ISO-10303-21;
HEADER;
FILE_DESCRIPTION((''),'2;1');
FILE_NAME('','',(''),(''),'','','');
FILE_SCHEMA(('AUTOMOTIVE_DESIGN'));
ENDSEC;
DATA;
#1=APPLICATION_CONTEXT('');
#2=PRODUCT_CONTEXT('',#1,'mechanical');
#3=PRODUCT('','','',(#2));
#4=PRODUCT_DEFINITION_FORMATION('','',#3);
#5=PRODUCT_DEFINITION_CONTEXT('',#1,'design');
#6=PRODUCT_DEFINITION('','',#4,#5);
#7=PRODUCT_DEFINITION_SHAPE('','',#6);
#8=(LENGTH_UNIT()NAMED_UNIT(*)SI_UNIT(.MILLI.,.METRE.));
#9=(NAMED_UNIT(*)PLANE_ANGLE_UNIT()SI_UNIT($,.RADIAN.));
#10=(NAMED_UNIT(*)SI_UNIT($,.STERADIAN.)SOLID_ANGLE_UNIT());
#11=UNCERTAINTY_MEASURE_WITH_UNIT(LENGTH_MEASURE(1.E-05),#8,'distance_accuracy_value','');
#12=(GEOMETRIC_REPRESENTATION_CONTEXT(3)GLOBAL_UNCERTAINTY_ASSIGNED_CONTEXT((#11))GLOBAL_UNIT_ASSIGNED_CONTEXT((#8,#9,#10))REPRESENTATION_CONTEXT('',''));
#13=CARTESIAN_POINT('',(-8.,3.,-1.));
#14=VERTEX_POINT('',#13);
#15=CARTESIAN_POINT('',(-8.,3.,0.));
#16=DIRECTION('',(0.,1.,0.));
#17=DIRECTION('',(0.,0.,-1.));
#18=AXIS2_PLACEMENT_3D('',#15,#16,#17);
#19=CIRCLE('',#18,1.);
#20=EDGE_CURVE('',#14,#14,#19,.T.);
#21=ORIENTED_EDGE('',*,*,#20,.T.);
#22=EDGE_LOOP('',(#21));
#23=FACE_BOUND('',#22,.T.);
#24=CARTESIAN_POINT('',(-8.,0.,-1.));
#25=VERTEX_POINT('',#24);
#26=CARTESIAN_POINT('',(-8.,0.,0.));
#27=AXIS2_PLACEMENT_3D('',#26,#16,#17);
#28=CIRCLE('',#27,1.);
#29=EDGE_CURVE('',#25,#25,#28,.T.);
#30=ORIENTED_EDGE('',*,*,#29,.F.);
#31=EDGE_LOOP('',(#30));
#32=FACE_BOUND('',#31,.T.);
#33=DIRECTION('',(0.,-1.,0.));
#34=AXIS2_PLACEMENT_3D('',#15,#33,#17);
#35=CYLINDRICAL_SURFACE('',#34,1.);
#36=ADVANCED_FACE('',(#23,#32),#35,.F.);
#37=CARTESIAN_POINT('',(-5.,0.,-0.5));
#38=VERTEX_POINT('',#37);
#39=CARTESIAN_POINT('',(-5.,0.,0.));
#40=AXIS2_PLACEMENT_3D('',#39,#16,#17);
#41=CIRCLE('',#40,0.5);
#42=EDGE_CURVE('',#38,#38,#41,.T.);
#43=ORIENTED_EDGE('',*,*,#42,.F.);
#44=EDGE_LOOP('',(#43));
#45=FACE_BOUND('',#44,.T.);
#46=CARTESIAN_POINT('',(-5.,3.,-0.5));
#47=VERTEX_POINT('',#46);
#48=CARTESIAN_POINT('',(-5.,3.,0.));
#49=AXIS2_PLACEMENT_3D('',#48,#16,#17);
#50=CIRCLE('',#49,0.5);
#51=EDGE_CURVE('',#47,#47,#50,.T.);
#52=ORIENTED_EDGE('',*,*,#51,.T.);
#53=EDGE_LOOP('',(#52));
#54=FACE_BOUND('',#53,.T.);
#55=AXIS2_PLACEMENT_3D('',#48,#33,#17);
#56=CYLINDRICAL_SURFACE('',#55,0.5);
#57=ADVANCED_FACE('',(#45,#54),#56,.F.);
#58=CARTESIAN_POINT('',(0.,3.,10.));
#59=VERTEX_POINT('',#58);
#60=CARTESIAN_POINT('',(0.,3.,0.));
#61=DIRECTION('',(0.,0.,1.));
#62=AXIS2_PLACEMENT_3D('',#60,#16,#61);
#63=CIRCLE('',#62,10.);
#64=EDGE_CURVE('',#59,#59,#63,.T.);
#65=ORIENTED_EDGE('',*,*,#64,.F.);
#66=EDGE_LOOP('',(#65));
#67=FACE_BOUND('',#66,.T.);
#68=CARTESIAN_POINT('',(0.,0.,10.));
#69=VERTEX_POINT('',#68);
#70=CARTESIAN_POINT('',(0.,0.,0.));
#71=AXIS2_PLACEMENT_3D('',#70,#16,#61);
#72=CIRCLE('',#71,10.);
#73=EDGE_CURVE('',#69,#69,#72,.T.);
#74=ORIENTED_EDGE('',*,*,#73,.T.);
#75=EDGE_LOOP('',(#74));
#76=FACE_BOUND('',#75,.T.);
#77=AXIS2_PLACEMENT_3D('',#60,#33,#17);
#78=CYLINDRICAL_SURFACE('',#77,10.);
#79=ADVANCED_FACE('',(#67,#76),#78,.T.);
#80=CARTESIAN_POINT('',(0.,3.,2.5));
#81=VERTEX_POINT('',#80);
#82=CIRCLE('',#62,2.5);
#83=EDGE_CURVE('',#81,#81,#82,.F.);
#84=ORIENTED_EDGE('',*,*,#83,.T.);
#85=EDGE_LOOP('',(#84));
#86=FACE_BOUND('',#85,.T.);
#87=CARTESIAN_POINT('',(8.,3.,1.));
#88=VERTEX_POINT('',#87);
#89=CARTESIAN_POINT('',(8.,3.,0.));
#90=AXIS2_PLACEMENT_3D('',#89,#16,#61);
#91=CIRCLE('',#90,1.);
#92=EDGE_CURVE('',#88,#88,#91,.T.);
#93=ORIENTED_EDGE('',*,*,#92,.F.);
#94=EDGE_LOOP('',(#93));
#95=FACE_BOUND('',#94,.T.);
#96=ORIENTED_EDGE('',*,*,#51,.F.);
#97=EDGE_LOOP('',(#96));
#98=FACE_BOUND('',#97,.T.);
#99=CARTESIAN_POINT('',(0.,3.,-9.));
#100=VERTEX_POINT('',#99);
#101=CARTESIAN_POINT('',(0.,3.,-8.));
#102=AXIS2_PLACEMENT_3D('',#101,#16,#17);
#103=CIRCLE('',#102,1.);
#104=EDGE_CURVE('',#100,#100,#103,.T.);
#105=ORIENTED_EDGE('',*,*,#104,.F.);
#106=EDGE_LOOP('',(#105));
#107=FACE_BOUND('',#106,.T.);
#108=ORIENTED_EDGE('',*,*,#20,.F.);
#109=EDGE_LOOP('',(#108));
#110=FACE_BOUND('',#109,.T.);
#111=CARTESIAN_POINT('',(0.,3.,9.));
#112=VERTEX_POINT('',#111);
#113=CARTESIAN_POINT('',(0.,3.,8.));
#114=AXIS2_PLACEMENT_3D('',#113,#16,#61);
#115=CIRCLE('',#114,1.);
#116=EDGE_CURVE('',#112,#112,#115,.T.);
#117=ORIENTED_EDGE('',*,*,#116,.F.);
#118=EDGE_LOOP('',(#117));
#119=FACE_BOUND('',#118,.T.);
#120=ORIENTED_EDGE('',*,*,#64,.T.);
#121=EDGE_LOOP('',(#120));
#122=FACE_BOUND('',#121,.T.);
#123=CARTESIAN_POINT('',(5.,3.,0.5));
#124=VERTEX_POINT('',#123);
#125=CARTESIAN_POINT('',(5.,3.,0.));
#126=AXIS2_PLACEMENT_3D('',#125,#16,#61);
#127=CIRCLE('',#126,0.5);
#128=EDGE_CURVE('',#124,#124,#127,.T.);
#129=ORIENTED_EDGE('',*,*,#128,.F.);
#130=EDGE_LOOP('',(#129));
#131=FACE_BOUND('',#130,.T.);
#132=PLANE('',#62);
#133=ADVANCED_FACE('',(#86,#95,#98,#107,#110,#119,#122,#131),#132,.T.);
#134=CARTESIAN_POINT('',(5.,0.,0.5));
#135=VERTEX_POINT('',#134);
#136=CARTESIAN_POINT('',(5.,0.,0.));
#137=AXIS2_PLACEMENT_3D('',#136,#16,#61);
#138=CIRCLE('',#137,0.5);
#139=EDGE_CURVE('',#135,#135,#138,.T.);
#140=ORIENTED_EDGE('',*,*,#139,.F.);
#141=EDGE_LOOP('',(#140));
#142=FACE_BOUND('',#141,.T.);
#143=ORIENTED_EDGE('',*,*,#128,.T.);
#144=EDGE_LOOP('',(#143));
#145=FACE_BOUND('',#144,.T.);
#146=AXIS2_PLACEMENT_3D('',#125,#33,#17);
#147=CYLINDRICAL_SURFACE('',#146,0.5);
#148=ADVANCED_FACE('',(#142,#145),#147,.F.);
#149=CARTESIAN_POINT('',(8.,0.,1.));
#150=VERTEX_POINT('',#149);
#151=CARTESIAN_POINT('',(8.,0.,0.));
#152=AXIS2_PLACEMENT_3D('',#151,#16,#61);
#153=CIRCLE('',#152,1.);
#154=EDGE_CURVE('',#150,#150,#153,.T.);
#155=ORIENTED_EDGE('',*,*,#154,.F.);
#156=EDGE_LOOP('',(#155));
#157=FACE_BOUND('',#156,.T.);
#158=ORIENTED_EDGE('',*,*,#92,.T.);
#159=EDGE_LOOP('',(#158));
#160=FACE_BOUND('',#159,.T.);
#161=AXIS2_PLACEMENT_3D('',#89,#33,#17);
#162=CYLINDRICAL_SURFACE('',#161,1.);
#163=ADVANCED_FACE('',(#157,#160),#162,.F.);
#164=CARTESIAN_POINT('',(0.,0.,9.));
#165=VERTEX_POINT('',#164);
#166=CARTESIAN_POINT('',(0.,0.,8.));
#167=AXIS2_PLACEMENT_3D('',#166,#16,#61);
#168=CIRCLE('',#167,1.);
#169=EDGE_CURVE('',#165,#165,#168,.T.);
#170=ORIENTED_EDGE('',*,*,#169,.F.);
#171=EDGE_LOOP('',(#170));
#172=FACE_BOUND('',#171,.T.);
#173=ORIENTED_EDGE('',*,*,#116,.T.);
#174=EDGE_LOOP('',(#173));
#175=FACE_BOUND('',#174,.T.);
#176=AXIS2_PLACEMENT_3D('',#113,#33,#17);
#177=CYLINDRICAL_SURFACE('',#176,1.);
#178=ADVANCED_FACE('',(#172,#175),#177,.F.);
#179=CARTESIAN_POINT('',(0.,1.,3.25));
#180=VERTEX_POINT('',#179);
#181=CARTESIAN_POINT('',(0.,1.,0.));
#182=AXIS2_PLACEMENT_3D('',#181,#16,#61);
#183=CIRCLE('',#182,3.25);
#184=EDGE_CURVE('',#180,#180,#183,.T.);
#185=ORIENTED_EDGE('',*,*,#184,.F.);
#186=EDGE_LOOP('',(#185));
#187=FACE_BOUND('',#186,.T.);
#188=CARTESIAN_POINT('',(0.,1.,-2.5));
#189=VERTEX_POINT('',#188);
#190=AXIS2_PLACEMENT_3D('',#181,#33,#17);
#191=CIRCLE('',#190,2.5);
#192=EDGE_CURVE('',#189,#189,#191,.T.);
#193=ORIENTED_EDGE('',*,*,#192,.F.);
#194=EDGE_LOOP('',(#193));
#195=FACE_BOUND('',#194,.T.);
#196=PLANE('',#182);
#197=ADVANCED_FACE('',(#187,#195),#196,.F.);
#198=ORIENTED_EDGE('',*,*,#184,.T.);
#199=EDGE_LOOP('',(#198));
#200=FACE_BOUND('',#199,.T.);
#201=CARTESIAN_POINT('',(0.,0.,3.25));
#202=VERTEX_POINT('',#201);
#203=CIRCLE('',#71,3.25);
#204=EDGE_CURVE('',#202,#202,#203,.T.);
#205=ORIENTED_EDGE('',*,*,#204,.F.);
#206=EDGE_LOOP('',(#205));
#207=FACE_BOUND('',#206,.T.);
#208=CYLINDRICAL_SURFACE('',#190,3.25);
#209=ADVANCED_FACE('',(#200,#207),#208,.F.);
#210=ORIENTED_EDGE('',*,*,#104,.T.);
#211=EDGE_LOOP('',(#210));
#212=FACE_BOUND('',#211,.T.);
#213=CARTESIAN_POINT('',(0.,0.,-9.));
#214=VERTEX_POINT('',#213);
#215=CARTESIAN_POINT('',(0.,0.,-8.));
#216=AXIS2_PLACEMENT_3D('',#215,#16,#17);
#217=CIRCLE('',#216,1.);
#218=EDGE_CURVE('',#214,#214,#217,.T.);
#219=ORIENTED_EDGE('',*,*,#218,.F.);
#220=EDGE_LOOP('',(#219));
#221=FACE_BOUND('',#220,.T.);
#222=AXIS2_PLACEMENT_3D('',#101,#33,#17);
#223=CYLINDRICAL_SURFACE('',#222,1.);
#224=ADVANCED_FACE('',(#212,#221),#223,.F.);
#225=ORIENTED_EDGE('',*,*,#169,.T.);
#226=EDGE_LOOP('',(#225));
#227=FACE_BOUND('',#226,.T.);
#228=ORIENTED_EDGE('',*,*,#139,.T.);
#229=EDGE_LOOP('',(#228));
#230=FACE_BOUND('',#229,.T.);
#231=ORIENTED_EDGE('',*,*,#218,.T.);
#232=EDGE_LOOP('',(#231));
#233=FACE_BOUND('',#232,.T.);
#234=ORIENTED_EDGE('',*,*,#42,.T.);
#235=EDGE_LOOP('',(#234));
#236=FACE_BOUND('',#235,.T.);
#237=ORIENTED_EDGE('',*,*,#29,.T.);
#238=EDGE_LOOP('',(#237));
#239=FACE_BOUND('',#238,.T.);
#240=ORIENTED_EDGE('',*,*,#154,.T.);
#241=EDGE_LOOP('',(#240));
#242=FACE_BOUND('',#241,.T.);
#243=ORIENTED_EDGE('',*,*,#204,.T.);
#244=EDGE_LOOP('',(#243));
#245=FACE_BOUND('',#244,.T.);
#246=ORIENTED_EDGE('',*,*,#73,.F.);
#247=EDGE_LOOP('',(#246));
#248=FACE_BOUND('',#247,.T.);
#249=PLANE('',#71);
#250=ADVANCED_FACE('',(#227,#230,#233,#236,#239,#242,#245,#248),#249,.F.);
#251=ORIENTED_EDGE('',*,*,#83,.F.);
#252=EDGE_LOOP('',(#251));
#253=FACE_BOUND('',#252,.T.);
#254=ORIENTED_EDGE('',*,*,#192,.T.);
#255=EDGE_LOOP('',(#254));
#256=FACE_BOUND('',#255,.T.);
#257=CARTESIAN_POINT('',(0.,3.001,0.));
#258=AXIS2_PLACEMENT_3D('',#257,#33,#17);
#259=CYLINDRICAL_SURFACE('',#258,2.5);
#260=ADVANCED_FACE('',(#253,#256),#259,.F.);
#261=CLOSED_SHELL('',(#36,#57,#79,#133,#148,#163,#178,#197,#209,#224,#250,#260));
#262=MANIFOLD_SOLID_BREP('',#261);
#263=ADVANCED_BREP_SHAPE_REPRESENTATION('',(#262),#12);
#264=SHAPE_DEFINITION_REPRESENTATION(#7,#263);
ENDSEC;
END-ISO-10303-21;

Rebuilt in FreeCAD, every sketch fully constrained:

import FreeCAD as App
import Part
import Sketcher
from FreeCAD import Vector
Q = App.Units.Quantity

doc = App.newDocument("Part")
body = doc.addObject("PartDesign::Body", "Body")

sketch1 = body.newObject("Sketcher::SketchObject", "Sketch")
sketch1.AttachmentSupport = (doc.getObject("XZ_Plane"), [""])
sketch1.MapMode = "FlatFace"
sketch1.addGeometry(Part.Circle(Vector(0, 0, 0), Vector(0, 0, 1), 10), False)
sketch1.addConstraint([
    Sketcher.Constraint("Coincident", 0, 3, -1, 1),
    Sketcher.Constraint("Diameter", 0, Q("20 mm")),
])
pad1 = body.newObject("PartDesign::Pad", "Pad")
pad1.Profile = sketch1
pad1.Length = 3
pad1.Reversed = True

sketch2 = body.newObject("Sketcher::SketchObject", "Sketch001")
sketch2.AttachmentSupport = (doc.getObject("XZ_Plane"), [""])
sketch2.MapMode = "FlatFace"
sketch2.addGeometry([
    Part.Circle(Vector(8, 0, 0), Vector(0, 0, 1), 1),
    Part.Circle(Vector(5, 0, 0), Vector(0, 0, 1), 0.5),
    Part.Circle(Vector(-5, 0, 0), Vector(0, 0, 1), 0.5),
    Part.Circle(Vector(-8, 0, 0), Vector(0, 0, 1), 1),
    Part.Circle(Vector(0, -8, 0), Vector(0, 0, 1), 1),
    Part.Circle(Vector(0, 8, 0), Vector(0, 0, 1), 1),
], False)
sketch2.addConstraint([
    Sketcher.Constraint("Equal", 1, 2),
    Sketcher.Constraint("Equal", 0, 3),
    Sketcher.Constraint("Equal", 3, 4),
    Sketcher.Constraint("Equal", 4, 5),
    Sketcher.Constraint("Symmetric", 1, 3, 2, 3, -1, 1),
    Sketcher.Constraint("Symmetric", 0, 3, 3, 3, -1, 1),
    Sketcher.Constraint("Symmetric", 4, 3, 5, 3, -1, 1),
    Sketcher.Constraint("PointOnObject", 0, 3, -1),
    Sketcher.Constraint("PointOnObject", 1, 3, -1),
    Sketcher.Constraint("PointOnObject", 4, 3, -2),
    Sketcher.Constraint("Diameter", 0, Q("2 mm")),
    Sketcher.Constraint("Diameter", 1, Q("1 mm")),
    Sketcher.Constraint("DistanceX", -1, 1, 0, 3, Q("8 mm")),
    Sketcher.Constraint("DistanceX", -1, 1, 1, 3, Q("5 mm")),
    Sketcher.Constraint("DistanceY", 4, 3, -1, 1, Q("8 mm")),
])
pocket1 = body.newObject("PartDesign::Pocket", "Pocket")
pocket1.Profile = sketch2
pocket1.Length = 3

sketch3 = body.newObject("Sketcher::SketchObject", "Sketch002")
sketch3.AttachmentSupport = (doc.getObject("XZ_Plane"), [""])
sketch3.MapMode = "FlatFace"
sketch3.addGeometry(Part.Circle(Vector(0, 0, 0), Vector(0, 0, 1), 3.2), False)
sketch3.addConstraint([
    Sketcher.Constraint("Coincident", 0, 3, -1, 1),
    Sketcher.Constraint("Diameter", 0, Q("6.5 mm")),
])
pocket2 = body.newObject("PartDesign::Pocket", "Pocket001")
pocket2.Profile = sketch3
pocket2.Length = 1

sketch4 = body.newObject("Sketcher::SketchObject", "Sketch003")
sketch4.AttachmentSupport = (doc.getObject("XZ_Plane"), [""])
sketch4.MapMode = "FlatFace"
sketch4.AttachmentOffset = App.Placement(Vector(0, 0, -1), App.Rotation())
sketch4.addGeometry(Part.Circle(Vector(0, 0, 0), Vector(0, 0, 1), 2.5), False)
sketch4.addConstraint([
    Sketcher.Constraint("Coincident", 0, 3, -1, 1),
    Sketcher.Constraint("Diameter", 0, Q("5 mm")),
])
pocket3 = body.newObject("PartDesign::Pocket", "Pocket002")
pocket3.Profile = sketch4
pocket3.Type = "UpToFirst"

doc.recompute()
